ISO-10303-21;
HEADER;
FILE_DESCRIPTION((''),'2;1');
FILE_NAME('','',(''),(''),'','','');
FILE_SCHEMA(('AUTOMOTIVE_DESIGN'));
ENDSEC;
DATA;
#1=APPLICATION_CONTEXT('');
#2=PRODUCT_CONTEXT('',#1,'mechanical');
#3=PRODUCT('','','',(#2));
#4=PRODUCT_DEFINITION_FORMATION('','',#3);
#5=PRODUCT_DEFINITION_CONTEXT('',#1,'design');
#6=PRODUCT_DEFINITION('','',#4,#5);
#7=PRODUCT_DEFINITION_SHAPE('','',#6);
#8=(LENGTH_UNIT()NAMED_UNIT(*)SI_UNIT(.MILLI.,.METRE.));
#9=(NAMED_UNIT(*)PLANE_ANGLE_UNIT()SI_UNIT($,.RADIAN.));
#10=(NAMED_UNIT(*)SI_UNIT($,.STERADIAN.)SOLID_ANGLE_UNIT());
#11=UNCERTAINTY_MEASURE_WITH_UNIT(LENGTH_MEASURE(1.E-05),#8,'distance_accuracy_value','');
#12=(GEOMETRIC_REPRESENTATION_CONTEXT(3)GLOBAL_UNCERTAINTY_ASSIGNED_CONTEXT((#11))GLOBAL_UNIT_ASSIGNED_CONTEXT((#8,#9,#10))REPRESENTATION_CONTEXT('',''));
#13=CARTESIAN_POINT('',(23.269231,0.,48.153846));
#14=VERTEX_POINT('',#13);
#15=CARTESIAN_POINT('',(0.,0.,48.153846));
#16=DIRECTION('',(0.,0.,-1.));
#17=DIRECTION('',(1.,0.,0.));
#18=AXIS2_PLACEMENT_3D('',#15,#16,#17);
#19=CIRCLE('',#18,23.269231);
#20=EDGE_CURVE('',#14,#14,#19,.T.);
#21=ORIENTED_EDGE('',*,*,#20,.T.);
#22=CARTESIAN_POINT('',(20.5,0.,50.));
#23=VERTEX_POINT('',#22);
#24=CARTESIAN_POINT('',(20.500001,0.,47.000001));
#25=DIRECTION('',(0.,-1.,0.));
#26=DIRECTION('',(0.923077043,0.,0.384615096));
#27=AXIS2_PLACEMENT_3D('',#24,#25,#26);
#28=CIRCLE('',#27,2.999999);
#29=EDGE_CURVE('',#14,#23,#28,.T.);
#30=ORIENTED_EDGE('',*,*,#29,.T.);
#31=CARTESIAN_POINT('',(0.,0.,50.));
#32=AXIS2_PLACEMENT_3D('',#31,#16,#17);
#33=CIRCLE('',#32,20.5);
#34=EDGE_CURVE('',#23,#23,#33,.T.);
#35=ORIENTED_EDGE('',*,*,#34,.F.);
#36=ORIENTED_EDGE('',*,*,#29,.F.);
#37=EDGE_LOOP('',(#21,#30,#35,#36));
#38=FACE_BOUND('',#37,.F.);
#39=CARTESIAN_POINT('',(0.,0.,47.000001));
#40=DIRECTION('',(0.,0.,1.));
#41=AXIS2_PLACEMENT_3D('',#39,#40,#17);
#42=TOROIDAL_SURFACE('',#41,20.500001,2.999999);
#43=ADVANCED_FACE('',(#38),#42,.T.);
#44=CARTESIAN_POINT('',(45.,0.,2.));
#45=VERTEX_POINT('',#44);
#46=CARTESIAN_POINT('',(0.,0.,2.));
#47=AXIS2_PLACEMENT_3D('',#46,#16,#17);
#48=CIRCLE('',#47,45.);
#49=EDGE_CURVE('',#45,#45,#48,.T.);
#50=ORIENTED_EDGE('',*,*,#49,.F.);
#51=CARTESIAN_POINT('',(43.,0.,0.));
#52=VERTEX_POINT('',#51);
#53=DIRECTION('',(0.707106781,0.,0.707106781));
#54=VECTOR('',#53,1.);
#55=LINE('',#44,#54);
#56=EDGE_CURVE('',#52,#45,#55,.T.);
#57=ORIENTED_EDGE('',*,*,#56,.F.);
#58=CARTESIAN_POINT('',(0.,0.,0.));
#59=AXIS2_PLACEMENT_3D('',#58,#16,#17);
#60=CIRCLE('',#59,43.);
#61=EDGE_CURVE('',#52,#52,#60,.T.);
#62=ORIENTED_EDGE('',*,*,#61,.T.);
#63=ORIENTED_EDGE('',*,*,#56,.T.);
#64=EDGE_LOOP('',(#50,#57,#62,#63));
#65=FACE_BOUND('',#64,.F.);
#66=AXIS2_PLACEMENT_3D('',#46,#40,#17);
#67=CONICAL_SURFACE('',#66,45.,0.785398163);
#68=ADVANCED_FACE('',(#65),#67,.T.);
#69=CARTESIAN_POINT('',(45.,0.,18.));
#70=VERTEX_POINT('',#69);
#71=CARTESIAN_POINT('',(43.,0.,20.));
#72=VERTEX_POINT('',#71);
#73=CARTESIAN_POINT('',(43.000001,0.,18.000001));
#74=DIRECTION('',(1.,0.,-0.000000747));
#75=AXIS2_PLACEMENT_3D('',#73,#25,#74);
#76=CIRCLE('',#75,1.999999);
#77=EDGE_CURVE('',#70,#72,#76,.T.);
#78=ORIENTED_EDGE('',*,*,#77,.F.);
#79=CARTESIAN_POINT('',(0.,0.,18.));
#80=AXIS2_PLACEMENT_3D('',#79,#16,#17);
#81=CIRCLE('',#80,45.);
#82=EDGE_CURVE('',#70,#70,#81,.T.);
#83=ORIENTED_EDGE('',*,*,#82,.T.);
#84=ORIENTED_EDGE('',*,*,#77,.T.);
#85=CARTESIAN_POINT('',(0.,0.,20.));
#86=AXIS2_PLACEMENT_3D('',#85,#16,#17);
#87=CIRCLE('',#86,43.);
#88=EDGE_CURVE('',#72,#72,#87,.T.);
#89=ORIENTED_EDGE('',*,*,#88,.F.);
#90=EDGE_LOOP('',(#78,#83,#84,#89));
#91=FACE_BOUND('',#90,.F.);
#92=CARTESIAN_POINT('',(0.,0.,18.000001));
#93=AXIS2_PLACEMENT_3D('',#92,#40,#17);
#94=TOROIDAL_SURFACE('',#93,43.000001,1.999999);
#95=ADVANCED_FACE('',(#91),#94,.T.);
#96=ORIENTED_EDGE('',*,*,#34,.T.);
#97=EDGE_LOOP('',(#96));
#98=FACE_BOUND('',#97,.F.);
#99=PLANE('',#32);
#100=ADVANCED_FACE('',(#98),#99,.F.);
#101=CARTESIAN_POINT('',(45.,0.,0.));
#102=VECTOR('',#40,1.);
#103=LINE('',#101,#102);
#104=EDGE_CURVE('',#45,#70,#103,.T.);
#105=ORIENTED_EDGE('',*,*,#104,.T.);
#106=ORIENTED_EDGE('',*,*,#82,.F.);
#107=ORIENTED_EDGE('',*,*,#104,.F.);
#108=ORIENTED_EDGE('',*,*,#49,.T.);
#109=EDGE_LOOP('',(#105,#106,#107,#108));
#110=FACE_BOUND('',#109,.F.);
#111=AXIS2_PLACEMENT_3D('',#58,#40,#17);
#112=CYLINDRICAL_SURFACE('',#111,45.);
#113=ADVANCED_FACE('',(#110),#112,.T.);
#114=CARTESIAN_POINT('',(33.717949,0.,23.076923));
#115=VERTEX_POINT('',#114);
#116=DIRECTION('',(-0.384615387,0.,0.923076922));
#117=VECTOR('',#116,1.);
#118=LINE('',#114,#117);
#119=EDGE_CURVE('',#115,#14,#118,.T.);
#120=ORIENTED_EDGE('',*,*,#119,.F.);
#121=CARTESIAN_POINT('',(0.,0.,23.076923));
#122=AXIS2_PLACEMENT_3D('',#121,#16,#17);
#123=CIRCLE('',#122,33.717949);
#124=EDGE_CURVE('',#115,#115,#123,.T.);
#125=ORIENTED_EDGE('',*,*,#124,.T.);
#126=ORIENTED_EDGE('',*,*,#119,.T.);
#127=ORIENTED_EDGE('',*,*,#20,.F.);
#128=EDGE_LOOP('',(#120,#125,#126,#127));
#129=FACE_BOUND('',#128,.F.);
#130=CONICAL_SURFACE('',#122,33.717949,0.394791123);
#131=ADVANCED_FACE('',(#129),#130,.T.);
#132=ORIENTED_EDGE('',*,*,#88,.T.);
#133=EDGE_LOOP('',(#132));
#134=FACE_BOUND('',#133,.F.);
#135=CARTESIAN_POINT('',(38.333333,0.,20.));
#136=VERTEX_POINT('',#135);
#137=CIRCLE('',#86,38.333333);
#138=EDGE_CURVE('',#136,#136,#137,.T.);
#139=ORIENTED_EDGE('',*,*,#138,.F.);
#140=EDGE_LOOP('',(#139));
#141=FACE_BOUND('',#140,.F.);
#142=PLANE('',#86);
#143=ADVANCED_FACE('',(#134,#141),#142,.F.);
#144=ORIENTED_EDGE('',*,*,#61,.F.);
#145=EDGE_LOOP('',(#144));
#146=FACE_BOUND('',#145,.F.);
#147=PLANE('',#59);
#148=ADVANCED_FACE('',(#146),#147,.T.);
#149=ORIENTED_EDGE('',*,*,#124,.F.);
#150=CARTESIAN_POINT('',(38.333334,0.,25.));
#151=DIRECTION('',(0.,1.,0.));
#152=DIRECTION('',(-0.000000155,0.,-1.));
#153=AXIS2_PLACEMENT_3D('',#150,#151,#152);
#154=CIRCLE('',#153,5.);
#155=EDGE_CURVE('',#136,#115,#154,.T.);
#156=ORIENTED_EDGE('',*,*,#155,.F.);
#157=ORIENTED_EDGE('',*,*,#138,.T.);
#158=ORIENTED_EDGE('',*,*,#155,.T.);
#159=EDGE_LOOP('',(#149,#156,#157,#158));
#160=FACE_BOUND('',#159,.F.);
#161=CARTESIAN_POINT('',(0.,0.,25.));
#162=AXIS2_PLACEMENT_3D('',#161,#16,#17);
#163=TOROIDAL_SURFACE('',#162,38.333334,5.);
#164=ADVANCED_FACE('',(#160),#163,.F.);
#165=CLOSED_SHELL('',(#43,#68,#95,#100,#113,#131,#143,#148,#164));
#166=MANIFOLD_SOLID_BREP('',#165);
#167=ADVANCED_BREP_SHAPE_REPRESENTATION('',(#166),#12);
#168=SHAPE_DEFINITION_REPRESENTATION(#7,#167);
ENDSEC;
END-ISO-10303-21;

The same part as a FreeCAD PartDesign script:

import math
import FreeCAD as App
import Part
import Sketcher
Q = App.Units.Quantity


def edges_at(feature, points):
    """Names of the edges that pass closest to the given points."""
    edges = feature.Shape.Edges
    near = lambda p: min(range(len(edges)), key=lambda i: edges[i].distToShape(Part.Vertex(*p))[0])
    return sorted({f"Edge{near(p) + 1}" for p in points})

doc = App.newDocument("Part")
params = doc.addObject("Spreadsheet::Sheet", "Params")
for row, (alias, value) in enumerate([
    ("sketch1_radius", "1.999999 mm"),
    ("sketch1_radius2", "5 mm"),
    ("sketch1_radius3", "2.999999 mm"),
    ("sketch1_width", "45 mm"),
    ("sketch1_height", "50 mm"),
    ("revolution_angle", "360 deg"),
    ("chamfer_size", "2 mm"),
], start=1):
    params.set(f"A{row}", alias)
    params.set(f"B{row}", "=" + value)
    params.setAlias(f"B{row}", alias)

body = doc.addObject("PartDesign::Body", "Body")

sketch1 = body.newObject("Sketcher::SketchObject", "Sketch")
sketch1.AttachmentSupport = (doc.getObject("XZ_Plane"), [""])
sketch1.MapMode = "FlatFace"
sketch1.addGeometry(Part.LineSegment(App.Vector(0, 50, 0), App.Vector(0, 0, 0)), False)
sketch1.addGeometry(Part.LineSegment(App.Vector(0, 0, 0), App.Vector(45, 0, 0)), False)
sketch1.addGeometry(Part.LineSegment(App.Vector(45, 0, 0), App.Vector(45, 18, 0)), False)
sketch1.addGeometry(Part.ArcOfCircle(Part.Circle(App.Vector(43.000001, 18.000001, 0), App.Vector(0, 0, 1), 1.999999), math.radians(-0.000043), math.radians(90.000043)), False)
sketch1.addGeometry(Part.LineSegment(App.Vector(43, 20, 0), App.Vector(38.333333, 20, 0)), False)
sketch1.addGeometry(Part.ArcOfCircle(Part.Circle(App.Vector(38.333334, 25, 0), App.Vector(0, 0, 1), 5), math.radians(-157.380132), math.radians(-90.000009)), False)
sketch1.addGeometry(Part.LineSegment(App.Vector(33.717949, 23.076923, 0), App.Vector(23.269231, 48.153846, 0)), False)
sketch1.addGeometry(Part.ArcOfCircle(Part.Circle(App.Vector(20.500001, 47.000001, 0), App.Vector(0, 0, 1), 2.999999), math.radians(22.619847), math.radians(90.000018)), False)
sketch1.addGeometry(Part.LineSegment(App.Vector(20.5, 50, 0), App.Vector(0, 50, 0)), False)
sketch1.addConstraint(Sketcher.Constraint("Coincident", 0, 2, 1, 1))
sketch1.addConstraint(Sketcher.Constraint("Coincident", 1, 2, 2, 1))
sketch1.addConstraint(Sketcher.Constraint("Tangent", 2, 2, 3, 1))
sketch1.addConstraint(Sketcher.Constraint("Tangent", 3, 2, 4, 1))
sketch1.addConstraint(Sketcher.Constraint("Tangent", 4, 2, 5, 2))
sketch1.addConstraint(Sketcher.Constraint("Tangent", 5, 1, 6, 1))
sketch1.addConstraint(Sketcher.Constraint("Tangent", 6, 2, 7, 1))
sketch1.addConstraint(Sketcher.Constraint("Tangent", 7, 2, 8, 1))
sketch1.addConstraint(Sketcher.Constraint("Coincident", 8, 2, 0, 1))
sketch1.addConstraint(Sketcher.Constraint("Vertical", 0))
sketch1.addConstraint(Sketcher.Constraint("Horizontal", 1))
sketch1.addConstraint(Sketcher.Constraint("Vertical", 2))
sketch1.addConstraint(Sketcher.Constraint("Horizontal", 4))
sketch1.addConstraint(Sketcher.Constraint("Horizontal", 8))
sketch1.addConstraint(Sketcher.Constraint("Coincident", 0, 2, -1, 1))
sketch1.addConstraint(Sketcher.Constraint("Radius", 3, Q("1.999999 mm")))
sketch1.addConstraint(Sketcher.Constraint("Radius", 5, Q("5 mm")))
sketch1.addConstraint(Sketcher.Constraint("Radius", 7, Q("2.999999 mm")))
sketch1.addConstraint(Sketcher.Constraint("DistanceX", 1, 1, 1, 2, Q("45 mm")))
sketch1.addConstraint(Sketcher.Constraint("DistanceY", 0, 2, 0, 1, Q("50 mm")))
sketch1.addConstraint(Sketcher.Constraint("DistanceY", 2, 1, 2, 2, Q("18 mm")))
sketch1.addConstraint(Sketcher.Constraint("DistanceX", 8, 2, 8, 1, Q("20.5 mm")))
sketch1.addConstraint(Sketcher.Constraint("DistanceX", 4, 2, 4, 1, Q("4.666667 mm")))
sketch1.setExpression("Constraints[15]", "Params.sketch1_radius")
sketch1.setExpression("Constraints[16]", "Params.sketch1_radius2")
sketch1.setExpression("Constraints[17]", "Params.sketch1_radius3")
sketch1.setExpression("Constraints[18]", "Params.sketch1_width")
sketch1.setExpression("Constraints[19]", "Params.sketch1_height")
revolution = body.newObject("PartDesign::Revolution", "Revolution")
revolution.Profile = sketch1
revolution.ReferenceAxis = (sketch1, ["V_Axis"])
revolution.setExpression("Angle", "Params.revolution_angle")
doc.recompute()

chamfer = body.newObject("PartDesign::Chamfer", "Chamfer")
chamfer.Base = (revolution, edges_at(revolution, [(-45, 0, 0)]))
chamfer.setExpression("Size", "Params.chamfer_size")

doc.recompute()
